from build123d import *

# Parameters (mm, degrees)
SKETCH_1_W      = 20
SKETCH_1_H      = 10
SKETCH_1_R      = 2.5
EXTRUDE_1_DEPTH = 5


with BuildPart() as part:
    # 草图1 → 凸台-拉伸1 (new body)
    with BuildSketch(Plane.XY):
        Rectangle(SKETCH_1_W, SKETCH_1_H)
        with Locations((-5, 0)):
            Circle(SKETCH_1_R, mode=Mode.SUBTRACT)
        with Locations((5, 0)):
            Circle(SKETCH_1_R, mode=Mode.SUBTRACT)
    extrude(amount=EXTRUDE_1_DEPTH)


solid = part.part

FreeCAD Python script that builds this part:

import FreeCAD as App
import Part
import Sketcher
from FreeCAD import Vector
Q = App.Units.Quantity

doc = App.newDocument("Part")
params = doc.addObject("Spreadsheet::Sheet", "Params")
for row, (alias, value) in enumerate([
    ("sketch1_diameter", "5 mm"),
    ("sketch1_width", "20 mm"),
    ("sketch1_height", "10 mm"),
    ("pad1_length", "5 mm"),
], start=1):
    params.set(f"A{row}", alias)
    params.set(f"B{row}", "=" + value)
    params.setAlias(f"B{row}", alias)

body = doc.addObject("PartDesign::Body", "Body")

sketch1 = body.newObject("Sketcher::SketchObject", "Sketch")
sketch1.AttachmentSupport = (doc.getObject("XY_Plane"), [""])
sketch1.MapMode = "FlatFace"
sketch1.addGeometry(Part.LineSegment(Vector(-10, 5, 0), Vector(-10, -5, 0)), False)
sketch1.addGeometry(Part.LineSegment(Vector(-10, -5, 0), Vector(10, -5, 0)), False)
sketch1.addGeometry(Part.LineSegment(Vector(10, -5, 0), Vector(10, 5, 0)), False)
sketch1.addGeometry(Part.LineSegment(Vector(10, 5, 0), Vector(-10, 5, 0)), False)
sketch1.addGeometry(Part.Circle(Vector(-5, 0, 0), Vector(0, 0, 1), 2.5), False)
sketch1.addGeometry(Part.Circle(Vector(5, 0, 0), Vector(0, 0, 1), 2.5), False)
sketch1.addConstraint(Sketcher.Constraint("Coincident", 0, 2, 1, 1))
sketch1.addConstraint(Sketcher.Constraint("Coincident", 1, 2, 2, 1))
sketch1.addConstraint(Sketcher.Constraint("Coincident", 2, 2, 3, 1))
sketch1.addConstraint(Sketcher.Constraint("Coincident", 3, 2, 0, 1))
sketch1.addConstraint(Sketcher.Constraint("Vertical", 0))
sketch1.addConstraint(Sketcher.Constraint("Horizontal", 1))
sketch1.addConstraint(Sketcher.Constraint("Vertical", 2))
sketch1.addConstraint(Sketcher.Constraint("Horizontal", 3))
sketch1.addConstraint(Sketcher.Constraint("Equal", 4, 5))
sketch1.addConstraint(Sketcher.Constraint("Symmetric", 4, 3, 5, 3, -1, 1))
sketch1.addConstraint(Sketcher.Constraint("Symmetric", 0, 2, 2, 2, -1, 1))
sketch1.addConstraint(Sketcher.Constraint("PointOnObject", 4, 3, -1))
sketch1.addConstraint(Sketcher.Constraint("Diameter", 4, Q("5 mm")))
sketch1.addConstraint(Sketcher.Constraint("DistanceX", 1, 1, 1, 2, Q("20 mm")))
sketch1.addConstraint(Sketcher.Constraint("DistanceY", 0, 2, 0, 1, Q("10 mm")))
sketch1.addConstraint(Sketcher.Constraint("DistanceX", 4, 3, -1, 1, Q("5 mm")))
sketch1.setExpression("Constraints[12]", "Params.sketch1_diameter")
sketch1.setExpression("Constraints[13]", "Params.sketch1_width")
sketch1.setExpression("Constraints[14]", "Params.sketch1_height")
pad1 = body.newObject("PartDesign::Pad", "Pad")
pad1.Profile = sketch1
pad1.setExpression("Length", "Params.pad1_length")

doc.recompute()
